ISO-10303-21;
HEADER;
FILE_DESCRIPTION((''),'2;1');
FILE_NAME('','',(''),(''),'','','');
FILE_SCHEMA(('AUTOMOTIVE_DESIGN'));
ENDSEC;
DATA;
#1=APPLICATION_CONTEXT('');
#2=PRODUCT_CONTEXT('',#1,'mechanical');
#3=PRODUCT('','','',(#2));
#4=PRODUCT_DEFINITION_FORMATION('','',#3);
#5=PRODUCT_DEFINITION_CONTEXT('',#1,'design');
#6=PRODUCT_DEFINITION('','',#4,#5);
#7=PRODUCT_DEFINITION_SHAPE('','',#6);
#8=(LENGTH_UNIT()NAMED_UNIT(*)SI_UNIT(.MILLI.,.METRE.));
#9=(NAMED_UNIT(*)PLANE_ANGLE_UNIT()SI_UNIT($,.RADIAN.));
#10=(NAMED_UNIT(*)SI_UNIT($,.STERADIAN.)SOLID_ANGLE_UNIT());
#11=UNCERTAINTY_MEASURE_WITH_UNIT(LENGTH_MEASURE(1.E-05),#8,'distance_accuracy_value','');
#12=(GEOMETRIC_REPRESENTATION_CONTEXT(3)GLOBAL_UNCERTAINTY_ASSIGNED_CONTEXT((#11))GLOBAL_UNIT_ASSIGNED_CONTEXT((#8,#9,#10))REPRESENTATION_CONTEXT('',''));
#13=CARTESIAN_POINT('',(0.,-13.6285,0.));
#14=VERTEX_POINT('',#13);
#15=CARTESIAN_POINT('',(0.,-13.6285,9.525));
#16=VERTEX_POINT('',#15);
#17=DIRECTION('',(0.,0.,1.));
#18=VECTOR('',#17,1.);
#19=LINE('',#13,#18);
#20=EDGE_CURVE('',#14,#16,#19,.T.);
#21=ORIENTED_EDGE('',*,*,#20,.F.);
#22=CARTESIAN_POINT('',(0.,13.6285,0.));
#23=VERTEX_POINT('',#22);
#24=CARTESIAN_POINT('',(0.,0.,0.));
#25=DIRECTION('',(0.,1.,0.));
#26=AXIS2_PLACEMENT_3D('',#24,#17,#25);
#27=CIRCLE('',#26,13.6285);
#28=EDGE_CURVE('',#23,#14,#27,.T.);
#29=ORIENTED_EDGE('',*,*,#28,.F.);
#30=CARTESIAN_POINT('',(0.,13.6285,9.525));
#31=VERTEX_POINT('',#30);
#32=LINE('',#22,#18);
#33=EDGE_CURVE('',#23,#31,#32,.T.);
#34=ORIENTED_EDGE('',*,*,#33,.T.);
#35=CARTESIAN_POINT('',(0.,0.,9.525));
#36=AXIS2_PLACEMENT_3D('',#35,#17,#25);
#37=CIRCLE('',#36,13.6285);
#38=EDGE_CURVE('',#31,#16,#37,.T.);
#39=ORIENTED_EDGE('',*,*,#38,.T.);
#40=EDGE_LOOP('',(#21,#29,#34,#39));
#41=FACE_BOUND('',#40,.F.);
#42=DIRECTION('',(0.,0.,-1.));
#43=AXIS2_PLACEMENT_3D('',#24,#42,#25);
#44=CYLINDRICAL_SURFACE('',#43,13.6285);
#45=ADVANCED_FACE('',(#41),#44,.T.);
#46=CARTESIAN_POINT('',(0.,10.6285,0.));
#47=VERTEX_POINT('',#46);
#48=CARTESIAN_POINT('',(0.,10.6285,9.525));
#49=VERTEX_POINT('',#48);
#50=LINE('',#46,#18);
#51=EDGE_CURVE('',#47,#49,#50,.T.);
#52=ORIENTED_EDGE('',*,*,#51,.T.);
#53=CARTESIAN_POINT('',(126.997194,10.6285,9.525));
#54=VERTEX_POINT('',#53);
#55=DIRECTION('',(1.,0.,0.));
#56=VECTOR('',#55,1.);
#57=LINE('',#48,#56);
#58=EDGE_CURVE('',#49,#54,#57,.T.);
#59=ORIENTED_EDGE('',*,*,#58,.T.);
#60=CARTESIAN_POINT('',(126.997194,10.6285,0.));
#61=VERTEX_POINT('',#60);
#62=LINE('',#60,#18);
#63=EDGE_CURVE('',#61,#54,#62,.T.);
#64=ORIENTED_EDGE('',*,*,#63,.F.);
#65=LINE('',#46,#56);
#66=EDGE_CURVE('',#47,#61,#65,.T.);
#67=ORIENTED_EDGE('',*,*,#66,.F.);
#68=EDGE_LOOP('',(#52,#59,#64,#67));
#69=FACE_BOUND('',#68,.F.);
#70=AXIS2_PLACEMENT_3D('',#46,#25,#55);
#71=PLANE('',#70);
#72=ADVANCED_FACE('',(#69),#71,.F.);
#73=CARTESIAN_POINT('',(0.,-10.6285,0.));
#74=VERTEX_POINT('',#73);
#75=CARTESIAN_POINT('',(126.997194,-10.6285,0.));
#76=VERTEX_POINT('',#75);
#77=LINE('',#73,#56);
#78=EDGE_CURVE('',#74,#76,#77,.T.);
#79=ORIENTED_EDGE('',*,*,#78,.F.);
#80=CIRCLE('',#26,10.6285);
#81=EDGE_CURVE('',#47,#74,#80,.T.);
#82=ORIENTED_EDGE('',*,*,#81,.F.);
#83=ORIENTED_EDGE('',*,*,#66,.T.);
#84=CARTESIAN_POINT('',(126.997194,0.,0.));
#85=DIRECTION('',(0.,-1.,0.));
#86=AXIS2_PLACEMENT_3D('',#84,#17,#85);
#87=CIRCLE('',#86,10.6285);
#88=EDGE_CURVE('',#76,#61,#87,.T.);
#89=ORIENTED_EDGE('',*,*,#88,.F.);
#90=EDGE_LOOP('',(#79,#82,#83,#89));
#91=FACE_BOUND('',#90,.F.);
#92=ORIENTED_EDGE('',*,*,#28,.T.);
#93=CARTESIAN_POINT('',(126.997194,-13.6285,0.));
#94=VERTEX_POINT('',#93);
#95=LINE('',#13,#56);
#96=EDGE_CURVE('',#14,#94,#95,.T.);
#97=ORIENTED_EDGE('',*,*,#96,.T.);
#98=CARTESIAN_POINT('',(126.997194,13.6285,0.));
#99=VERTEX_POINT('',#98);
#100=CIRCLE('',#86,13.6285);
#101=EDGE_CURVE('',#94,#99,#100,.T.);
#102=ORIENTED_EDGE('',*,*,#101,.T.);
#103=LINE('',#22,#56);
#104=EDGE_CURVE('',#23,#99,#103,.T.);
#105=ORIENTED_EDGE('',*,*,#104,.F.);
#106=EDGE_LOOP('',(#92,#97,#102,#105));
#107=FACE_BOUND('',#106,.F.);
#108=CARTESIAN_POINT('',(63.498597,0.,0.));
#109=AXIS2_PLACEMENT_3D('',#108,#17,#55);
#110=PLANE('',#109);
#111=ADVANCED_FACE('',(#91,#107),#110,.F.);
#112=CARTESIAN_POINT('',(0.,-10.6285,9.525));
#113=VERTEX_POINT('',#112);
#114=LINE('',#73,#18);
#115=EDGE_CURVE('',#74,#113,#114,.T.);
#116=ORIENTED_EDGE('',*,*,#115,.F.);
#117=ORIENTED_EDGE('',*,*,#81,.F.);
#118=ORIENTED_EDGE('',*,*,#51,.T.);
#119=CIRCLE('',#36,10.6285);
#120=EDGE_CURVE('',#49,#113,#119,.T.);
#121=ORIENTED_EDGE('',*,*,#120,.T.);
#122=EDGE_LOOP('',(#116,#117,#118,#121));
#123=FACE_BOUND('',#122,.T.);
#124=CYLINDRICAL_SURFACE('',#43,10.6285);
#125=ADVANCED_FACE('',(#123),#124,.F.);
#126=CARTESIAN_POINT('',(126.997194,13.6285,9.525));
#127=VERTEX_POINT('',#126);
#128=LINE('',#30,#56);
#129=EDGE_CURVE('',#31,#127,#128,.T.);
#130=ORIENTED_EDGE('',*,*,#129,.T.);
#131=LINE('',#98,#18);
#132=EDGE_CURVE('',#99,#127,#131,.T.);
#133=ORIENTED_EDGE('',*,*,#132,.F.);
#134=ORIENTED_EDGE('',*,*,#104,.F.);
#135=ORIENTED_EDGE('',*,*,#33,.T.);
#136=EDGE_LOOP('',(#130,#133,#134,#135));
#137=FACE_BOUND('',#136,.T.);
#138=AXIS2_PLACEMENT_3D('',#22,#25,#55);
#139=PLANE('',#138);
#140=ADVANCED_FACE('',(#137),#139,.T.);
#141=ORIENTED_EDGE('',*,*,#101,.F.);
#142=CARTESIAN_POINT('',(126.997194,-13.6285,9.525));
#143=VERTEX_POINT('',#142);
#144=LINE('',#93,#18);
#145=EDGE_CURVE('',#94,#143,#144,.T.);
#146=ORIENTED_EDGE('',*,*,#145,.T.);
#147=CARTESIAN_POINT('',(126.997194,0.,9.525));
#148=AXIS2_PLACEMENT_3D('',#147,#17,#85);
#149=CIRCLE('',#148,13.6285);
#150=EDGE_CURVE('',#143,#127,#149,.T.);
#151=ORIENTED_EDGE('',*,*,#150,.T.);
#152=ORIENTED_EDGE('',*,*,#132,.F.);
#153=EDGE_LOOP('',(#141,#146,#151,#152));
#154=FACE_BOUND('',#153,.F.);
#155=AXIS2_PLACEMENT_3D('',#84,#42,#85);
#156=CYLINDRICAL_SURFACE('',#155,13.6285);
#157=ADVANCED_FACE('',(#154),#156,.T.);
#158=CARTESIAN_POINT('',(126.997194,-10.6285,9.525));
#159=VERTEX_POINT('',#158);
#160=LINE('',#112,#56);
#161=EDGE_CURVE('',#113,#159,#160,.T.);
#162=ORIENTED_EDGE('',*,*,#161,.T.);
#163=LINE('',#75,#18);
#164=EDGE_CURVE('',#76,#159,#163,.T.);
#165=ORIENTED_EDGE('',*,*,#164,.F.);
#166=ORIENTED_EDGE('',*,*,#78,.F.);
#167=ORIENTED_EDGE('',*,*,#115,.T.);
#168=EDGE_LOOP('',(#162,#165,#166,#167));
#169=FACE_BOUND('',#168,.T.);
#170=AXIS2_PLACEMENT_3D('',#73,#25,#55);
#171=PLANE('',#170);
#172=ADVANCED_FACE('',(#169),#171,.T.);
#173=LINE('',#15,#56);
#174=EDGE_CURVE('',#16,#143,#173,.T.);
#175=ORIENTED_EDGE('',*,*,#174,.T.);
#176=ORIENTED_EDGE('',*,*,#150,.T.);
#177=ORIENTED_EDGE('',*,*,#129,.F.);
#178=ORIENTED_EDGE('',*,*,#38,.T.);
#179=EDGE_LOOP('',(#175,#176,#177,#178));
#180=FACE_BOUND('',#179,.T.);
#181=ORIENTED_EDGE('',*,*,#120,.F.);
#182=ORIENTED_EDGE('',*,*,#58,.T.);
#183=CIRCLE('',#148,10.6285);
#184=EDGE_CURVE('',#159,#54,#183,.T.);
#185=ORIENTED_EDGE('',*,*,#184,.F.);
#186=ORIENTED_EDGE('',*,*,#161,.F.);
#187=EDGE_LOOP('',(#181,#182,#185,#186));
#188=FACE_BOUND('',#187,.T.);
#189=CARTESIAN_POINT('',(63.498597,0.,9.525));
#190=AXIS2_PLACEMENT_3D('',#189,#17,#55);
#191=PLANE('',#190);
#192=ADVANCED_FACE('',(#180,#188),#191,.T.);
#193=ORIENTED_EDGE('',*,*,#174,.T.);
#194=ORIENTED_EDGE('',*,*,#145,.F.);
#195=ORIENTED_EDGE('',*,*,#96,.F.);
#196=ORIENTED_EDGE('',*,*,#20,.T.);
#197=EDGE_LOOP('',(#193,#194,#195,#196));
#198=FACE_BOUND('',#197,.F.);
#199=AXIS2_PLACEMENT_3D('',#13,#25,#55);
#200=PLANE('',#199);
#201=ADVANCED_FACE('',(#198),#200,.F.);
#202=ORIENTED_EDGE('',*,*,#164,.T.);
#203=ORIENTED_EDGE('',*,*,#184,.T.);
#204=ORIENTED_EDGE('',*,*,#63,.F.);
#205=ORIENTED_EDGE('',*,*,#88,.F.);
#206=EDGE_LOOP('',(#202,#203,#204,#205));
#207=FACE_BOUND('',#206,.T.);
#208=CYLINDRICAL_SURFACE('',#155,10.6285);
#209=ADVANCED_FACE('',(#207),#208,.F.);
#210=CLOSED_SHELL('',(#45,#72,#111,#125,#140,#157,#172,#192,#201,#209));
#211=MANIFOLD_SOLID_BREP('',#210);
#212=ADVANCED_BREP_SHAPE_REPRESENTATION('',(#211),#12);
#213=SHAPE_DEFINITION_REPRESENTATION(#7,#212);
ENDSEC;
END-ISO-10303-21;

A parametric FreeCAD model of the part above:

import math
import FreeCAD as App
import Part
import Sketcher
from FreeCAD import Vector
Q = App.Units.Quantity

doc = App.newDocument("Part")
body = doc.addObject("PartDesign::Body", "Body")

sketch1 = doc.addObject("Sketcher::SketchObject", "Sketch")
body.addObject(sketch1)
sketch1.AttachmentSupport = (doc.XY_Plane, [""])
sketch1.MapMode = "FlatFace"
sketch1.addGeometry([
    Part.ArcOfCircle(Part.Circle(Vector(0, 0, 0), Vector(0, 0, 1), 14), math.radians(90), math.radians(270)),
    Part.LineSegment(Vector(0, -14, 0), Vector(127, -14, 0)),
    Part.ArcOfCircle(Part.Circle(Vector(127, 0, 0), Vector(0, 0, 1), 14), math.radians(-90), math.radians(90)),
    Part.LineSegment(Vector(127, 14, 0), Vector(0, 14, 0)),
    Part.ArcOfCircle(Part.Circle(Vector(0, 0, 0), Vector(0, 0, 1), 11), math.radians(90), math.radians(270)),
    Part.LineSegment(Vector(0, 11, 0), Vector(127, 11, 0)),
    Part.ArcOfCircle(Part.Circle(Vector(127, 0, 0), Vector(0, 0, 1), 11), math.radians(-90), math.radians(90)),
    Part.LineSegment(Vector(127, -11, 0), Vector(0, -11, 0)),
], False)
sketch1.addConstraint([
    Sketcher.Constraint("Tangent", 0, 2, 1, 1),
    Sketcher.Constraint("Tangent", 1, 2, 2, 1),
    Sketcher.Constraint("Tangent", 2, 2, 3, 1),
    Sketcher.Constraint("Tangent", 3, 2, 0, 1),
    Sketcher.Constraint("Tangent", 4, 1, 5, 1),
    Sketcher.Constraint("Tangent", 5, 2, 6, 2),
    Sketcher.Constraint("Tangent", 6, 1, 7, 1),
    Sketcher.Constraint("Tangent", 7, 2, 4, 2),
    Sketcher.Constraint("Horizontal", 1),
    Sketcher.Constraint("Horizontal", 3),
    Sketcher.Constraint("Horizontal", 5),
    Sketcher.Constraint("Horizontal", 7),
    Sketcher.Constraint("Coincident", 0, 3, -1, 1),
    Sketcher.Constraint("Coincident", 4, 3, -1, 1),
    Sketcher.Constraint("Vertical", 6, 3, 1, 2),
    Sketcher.Constraint("Radius", 0, 13.6285),
    Sketcher.Constraint("Radius", 4, 10.6285),
    Sketcher.Constraint("DistanceX", 1, 1, 1, 2, 126.997194),
])
pad1 = doc.addObject("PartDesign::Pad", "Pad")
body.addObject(pad1)
pad1.Profile = sketch1
pad1.Length = Q("0.375 in")

doc.recompute()
